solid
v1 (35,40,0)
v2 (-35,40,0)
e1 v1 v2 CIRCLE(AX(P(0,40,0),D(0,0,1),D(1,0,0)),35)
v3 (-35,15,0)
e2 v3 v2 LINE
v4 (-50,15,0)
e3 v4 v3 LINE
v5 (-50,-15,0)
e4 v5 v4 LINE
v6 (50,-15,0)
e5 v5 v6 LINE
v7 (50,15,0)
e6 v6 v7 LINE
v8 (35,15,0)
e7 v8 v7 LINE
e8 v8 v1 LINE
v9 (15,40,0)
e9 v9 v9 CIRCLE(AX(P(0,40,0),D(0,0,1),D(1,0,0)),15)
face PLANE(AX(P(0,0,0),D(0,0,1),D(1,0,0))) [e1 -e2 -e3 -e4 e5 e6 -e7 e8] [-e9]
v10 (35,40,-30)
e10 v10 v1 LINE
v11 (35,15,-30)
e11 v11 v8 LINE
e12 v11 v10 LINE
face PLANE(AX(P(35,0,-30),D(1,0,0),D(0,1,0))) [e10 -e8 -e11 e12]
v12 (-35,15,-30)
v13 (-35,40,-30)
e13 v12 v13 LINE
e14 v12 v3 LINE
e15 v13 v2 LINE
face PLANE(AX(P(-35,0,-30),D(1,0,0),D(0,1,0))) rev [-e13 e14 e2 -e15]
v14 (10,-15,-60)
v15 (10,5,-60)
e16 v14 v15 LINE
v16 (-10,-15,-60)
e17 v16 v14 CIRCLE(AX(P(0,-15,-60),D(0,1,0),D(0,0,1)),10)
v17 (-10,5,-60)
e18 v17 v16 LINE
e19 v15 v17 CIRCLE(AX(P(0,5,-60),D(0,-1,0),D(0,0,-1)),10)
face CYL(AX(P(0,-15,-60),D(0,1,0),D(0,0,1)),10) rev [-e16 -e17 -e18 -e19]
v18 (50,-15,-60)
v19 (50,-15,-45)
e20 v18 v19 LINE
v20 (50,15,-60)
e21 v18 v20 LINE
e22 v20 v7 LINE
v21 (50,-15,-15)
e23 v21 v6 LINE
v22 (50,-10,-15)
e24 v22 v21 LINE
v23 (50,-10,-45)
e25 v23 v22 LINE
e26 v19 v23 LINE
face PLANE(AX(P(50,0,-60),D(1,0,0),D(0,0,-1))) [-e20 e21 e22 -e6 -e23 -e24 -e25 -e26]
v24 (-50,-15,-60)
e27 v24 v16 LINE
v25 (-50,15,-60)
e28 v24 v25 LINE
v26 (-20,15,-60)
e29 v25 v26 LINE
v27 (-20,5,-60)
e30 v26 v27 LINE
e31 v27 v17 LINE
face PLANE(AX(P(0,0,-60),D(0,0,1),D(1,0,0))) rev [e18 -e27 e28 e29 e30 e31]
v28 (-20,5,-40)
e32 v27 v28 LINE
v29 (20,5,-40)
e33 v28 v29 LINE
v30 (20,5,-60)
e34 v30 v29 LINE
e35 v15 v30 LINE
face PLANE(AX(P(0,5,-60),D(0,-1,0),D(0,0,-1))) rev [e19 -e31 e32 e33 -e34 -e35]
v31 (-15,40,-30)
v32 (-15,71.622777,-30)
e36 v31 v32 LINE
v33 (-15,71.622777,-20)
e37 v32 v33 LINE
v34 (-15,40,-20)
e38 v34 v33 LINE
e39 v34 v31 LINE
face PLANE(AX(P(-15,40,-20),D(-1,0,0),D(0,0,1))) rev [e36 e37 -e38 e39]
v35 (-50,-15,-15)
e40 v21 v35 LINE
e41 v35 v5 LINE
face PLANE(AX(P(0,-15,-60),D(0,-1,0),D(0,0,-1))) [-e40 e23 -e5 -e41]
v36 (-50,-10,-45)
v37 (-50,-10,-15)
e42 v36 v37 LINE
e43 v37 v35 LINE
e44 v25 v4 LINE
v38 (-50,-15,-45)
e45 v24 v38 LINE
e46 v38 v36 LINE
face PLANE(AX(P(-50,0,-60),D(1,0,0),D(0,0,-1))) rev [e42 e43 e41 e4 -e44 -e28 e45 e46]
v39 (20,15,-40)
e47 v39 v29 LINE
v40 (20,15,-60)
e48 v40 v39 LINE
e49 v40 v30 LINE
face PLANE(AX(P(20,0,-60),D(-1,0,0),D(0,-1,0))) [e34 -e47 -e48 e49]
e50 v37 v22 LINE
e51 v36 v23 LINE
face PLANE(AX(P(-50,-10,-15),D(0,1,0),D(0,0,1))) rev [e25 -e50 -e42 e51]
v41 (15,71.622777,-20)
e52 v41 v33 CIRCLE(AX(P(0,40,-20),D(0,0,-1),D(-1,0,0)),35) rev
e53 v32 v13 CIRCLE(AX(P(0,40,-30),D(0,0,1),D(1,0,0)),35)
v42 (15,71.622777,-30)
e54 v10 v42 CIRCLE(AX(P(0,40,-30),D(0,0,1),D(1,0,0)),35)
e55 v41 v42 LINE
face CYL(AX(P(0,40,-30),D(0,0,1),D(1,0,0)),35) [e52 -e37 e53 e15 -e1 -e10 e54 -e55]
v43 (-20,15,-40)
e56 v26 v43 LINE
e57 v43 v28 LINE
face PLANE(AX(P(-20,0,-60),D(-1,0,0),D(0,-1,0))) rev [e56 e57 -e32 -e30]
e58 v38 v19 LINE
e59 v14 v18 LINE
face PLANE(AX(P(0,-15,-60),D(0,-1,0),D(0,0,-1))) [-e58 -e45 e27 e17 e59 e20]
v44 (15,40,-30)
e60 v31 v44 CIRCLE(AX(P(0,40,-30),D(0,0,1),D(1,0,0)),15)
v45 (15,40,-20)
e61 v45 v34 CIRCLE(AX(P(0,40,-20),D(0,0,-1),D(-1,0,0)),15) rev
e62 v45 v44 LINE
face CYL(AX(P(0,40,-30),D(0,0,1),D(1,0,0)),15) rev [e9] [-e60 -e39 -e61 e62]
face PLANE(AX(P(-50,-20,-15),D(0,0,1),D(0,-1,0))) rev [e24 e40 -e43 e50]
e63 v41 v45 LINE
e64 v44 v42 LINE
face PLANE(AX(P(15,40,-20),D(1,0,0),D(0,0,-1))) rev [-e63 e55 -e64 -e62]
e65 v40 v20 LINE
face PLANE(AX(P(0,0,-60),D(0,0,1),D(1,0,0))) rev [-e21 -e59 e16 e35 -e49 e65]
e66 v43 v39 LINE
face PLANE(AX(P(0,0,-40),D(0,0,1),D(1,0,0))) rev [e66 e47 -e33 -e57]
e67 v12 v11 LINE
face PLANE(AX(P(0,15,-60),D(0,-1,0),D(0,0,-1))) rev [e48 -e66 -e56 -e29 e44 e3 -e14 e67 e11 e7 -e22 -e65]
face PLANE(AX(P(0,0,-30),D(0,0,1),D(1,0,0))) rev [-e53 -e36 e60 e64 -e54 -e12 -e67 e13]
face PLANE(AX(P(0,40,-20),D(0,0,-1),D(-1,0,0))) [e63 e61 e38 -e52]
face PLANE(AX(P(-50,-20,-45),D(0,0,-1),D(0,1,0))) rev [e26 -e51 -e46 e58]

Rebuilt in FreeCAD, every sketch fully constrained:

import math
import FreeCAD as App
import Part
import Sketcher

V = App.Vector


def add_polygon(sketch, points):
    """Adds a closed chain of lines whose ends are joined by coincident constraints."""
    first, n = sketch.GeometryCount, len(points)
    for a, b in zip(points, points[1:] + points[:1]):
        sketch.addGeometry(Part.LineSegment(App.Vector(*a, 0), App.Vector(*b, 0)), False)
    for i in range(n):
        sketch.addConstraint(Sketcher.Constraint("Coincident", first + i, 2, first + (i + 1) % n, 1))

doc = App.newDocument("Part")
params = doc.addObject("Spreadsheet::Sheet", "Params")
for row, (alias, value) in enumerate([
    ("sketch1_width", "100 mm"),
    ("sketch1_height", "30 mm"),
    ("pad1_length", "60 mm"),
    ("sketch2_diameter", "30 mm"),
    ("sketch2_radius", "35 mm"),
    ("sketch2_height", "25 mm"),
    ("pad2_length", "30 mm"),
    ("sketch3_width", "40 mm"),
    ("sketch3_height", "10 mm"),
    ("sketch4_width", "10 mm"),
    ("sketch4_height", "30 mm"),
    ("sketch5_radius", "15 mm"),
    ("pocket3_length", "10 mm"),
    ("sketch6_diameter", "20 mm"),
], start=1):
    params.set(f"A{row}", alias)
    params.set(f"B{row}", "=" + value)
    params.setAlias(f"B{row}", alias)

body = doc.addObject("PartDesign::Body", "Body")

sketch1 = doc.addObject("Sketcher::SketchObject", "Sketch")
body.addObject(sketch1)
sketch1.AttachmentSupport = (doc.XY_Plane, [""])
sketch1.MapMode = "FlatFace"
add_polygon(sketch1, [(-50, 15), (-50, -15), (50, -15), (50, 15)])
sketch1.addConstraint(Sketcher.Constraint("Vertical", 0))
sketch1.addConstraint(Sketcher.Constraint("Horizontal", 1))
sketch1.addConstraint(Sketcher.Constraint("Vertical", 2))
sketch1.addConstraint(Sketcher.Constraint("Horizontal", 3))
sketch1.addConstraint(Sketcher.Constraint("Symmetric", 0, 2, 2, 2, -1, 1))
sketch1.addConstraint(Sketcher.Constraint("DistanceX", 1, 1, 1, 2, 100.0))
sketch1.addConstraint(Sketcher.Constraint("DistanceY", 0, 2, 0, 1, 30.0))
sketch1.setExpression("Constraints[9]", "Params.sketch1_width")
sketch1.setExpression("Constraints[10]", "Params.sketch1_height")
pad1 = doc.addObject("PartDesign::Pad", "Pad")
body.addObject(pad1)
pad1.Profile = sketch1
pad1.setExpression("Length", "Params.pad1_length")
pad1.Reversed = True

sketch2 = doc.addObject("Sketcher::SketchObject", "Sketch001")
body.addObject(sketch2)
sketch2.AttachmentSupport = (doc.XY_Plane, [""])
sketch2.MapMode = "FlatFace"
sketch2.addGeometry(Part.LineSegment(V(-35, 40, 0), V(-35, 15, 0)), False)
sketch2.addGeometry(Part.LineSegment(V(-35, 15, 0), V(35, 15, 0)), False)
sketch2.addGeometry(Part.LineSegment(V(35, 15, 0), V(35, 40, 0)), False)
sketch2.addGeometry(Part.ArcOfCircle(Part.Circle(V(0, 40, 0), V(0, 0, 1), 35), math.radians(0), math.radians(180)), False)
sketch2.addGeometry(Part.Circle(V(0, 40, 0), V(0, 0, 1), 15), False)
sketch2.addConstraint(Sketcher.Constraint("Coincident", 0, 2, 1, 1))
sketch2.addConstraint(Sketcher.Constraint("Coincident", 1, 2, 2, 1))
sketch2.addConstraint(Sketcher.Constraint("Tangent", 2, 2, 3, 1))
sketch2.addConstraint(Sketcher.Constraint("Tangent", 3, 2, 0, 1))
sketch2.addConstraint(Sketcher.Constraint("Vertical", 0))
sketch2.addConstraint(Sketcher.Constraint("Horizontal", 1))
sketch2.addConstraint(Sketcher.Constraint("Vertical", 2))
sketch2.addConstraint(Sketcher.Constraint("Coincident", 4, 3, 3, 3))
sketch2.addConstraint(Sketcher.Constraint("PointOnObject", 3, 3, -2))
sketch2.addConstraint(Sketcher.Constraint("Diameter", 4, 30.0))
sketch2.addConstraint(Sketcher.Constraint("Radius", 3, 35.0))
sketch2.addConstraint(Sketcher.Constraint("DistanceY", 0, 2, 0, 1, 25.0))
sketch2.addConstraint(Sketcher.Constraint("DistanceY", -1, 1, 3, 3, 40.0))
sketch2.setExpression("Constraints[9]", "Params.sketch2_diameter")
sketch2.setExpression("Constraints[10]", "Params.sketch2_radius")
sketch2.setExpression("Constraints[11]", "Params.sketch2_height")
pad2 = doc.addObject("PartDesign::Pad", "Pad001")
body.addObject(pad2)
pad2.Profile = sketch2
pad2.setExpression("Length", "Params.pad2_length")
pad2.Reversed = True

sketch3 = doc.addObject("Sketcher::SketchObject", "Sketch002")
body.addObject(sketch3)
sketch3.AttachmentSupport = (doc.XY_Plane, [""])
sketch3.MapMode = "FlatFace"
sketch3.AttachmentOffset = App.Placement(V(0, 0, -40), App.Rotation())
add_polygon(sketch3, [(-20, 15), (-20, 5), (20, 5), (20, 15)])
sketch3.addConstraint(Sketcher.Constraint("Vertical", 0))
sketch3.addConstraint(Sketcher.Constraint("Horizontal", 1))
sketch3.addConstraint(Sketcher.Constraint("Vertical", 2))
sketch3.addConstraint(Sketcher.Constraint("Horizontal", 3))
sketch3.addConstraint(Sketcher.Constraint("DistanceX", 1, 1, 1, 2, 40.0))
sketch3.addConstraint(Sketcher.Constraint("DistanceY", 0, 2, 0, 1, 10.0))
sketch3.addConstraint(Sketcher.Constraint("DistanceX", 0, 2, -1, 1, 20.0))
sketch3.addConstraint(Sketcher.Constraint("DistanceY", -1, 1, 0, 2, 5.0))
sketch3.setExpression("Constraints[8]", "Params.sketch3_width")
sketch3.setExpression("Constraints[9]", "Params.sketch3_height")
pocket1 = doc.addObject("PartDesign::Pocket", "Pocket")
body.addObject(pocket1)
pocket1.Profile = sketch3
pocket1.Type = "ThroughAll"

sketch4 = doc.addObject("Sketcher::SketchObject", "Sketch003")
body.addObject(sketch4)
sketch4.AttachmentSupport = (doc.YZ_Plane, [""])
sketch4.MapMode = "FlatFace"
sketch4.AttachmentOffset = App.Placement(V(0, 0, 50), App.Rotation())
add_polygon(sketch4, [(-10, -15), (-20, -15), (-20, -45), (-10, -45)])
sketch4.addConstraint(Sketcher.Constraint("Horizontal", 0))
sketch4.addConstraint(Sketcher.Constraint("Vertical", 1))
sketch4.addConstraint(Sketcher.Constraint("Horizontal", 2))
sketch4.addConstraint(Sketcher.Constraint("Vertical", 3))
sketch4.addConstraint(Sketcher.Constraint("DistanceX", 0, 2, 0, 1, 10.0))
sketch4.addConstraint(Sketcher.Constraint("DistanceY", 1, 2, 1, 1, 30.0))
sketch4.addConstraint(Sketcher.Constraint("DistanceX", 0, 2, -1, 1, 20.0))
sketch4.addConstraint(Sketcher.Constraint("DistanceY", 0, 2, -1, 1, 15.0))
sketch4.setExpression("Constraints[8]", "Params.sketch4_width")
sketch4.setExpression("Constraints[9]", "Params.sketch4_height")
pocket2 = doc.addObject("PartDesign::Pocket", "Pocket001")
body.addObject(pocket2)
pocket2.Profile = sketch4
pocket2.Type = "ThroughAll"

sketch5 = doc.addObject("Sketcher::SketchObject", "Sketch004")
body.addObject(sketch5)
sketch5.AttachmentSupport = (doc.XY_Plane, [""])
sketch5.MapMode = "FlatFace"
sketch5.AttachmentOffset = App.Placement(V(0, 0, -20), App.Rotation())
sketch5.addGeometry(Part.LineSegment(V(-15, 40, 0), V(-15, 85, 0)), False)
sketch5.addGeometry(Part.LineSegment(V(-15, 85, 0), V(15, 85, 0)), False)
sketch5.addGeometry(Part.LineSegment(V(15, 85, 0), V(15, 40, 0)), False)
sketch5.addGeometry(Part.ArcOfCircle(Part.Circle(V(0, 40, 0), V(0, 0, 1), 15), math.radians(180), math.radians(360)), False)
sketch5.addConstraint(Sketcher.Constraint("Coincident", 0, 2, 1, 1))
sketch5.addConstraint(Sketcher.Constraint("Coincident", 1, 2, 2, 1))
sketch5.addConstraint(Sketcher.Constraint("Tangent", 2, 2, 3, 2))
sketch5.addConstraint(Sketcher.Constraint("Tangent", 3, 1, 0, 1))
sketch5.addConstraint(Sketcher.Constraint("Vertical", 0))
sketch5.addConstraint(Sketcher.Constraint("Horizontal", 1))
sketch5.addConstraint(Sketcher.Constraint("Vertical", 2))
sketch5.addConstraint(Sketcher.Constraint("PointOnObject", 3, 3, -2))
sketch5.addConstraint(Sketcher.Constraint("Radius", 3, 15.0))
sketch5.addConstraint(Sketcher.Constraint("DistanceY", -1, 1, 3, 3, 40.0))
sketch5.addConstraint(Sketcher.Constraint("DistanceY", 0, 1, 0, 2, 45.033893))
sketch5.setExpression("Constraints[8]", "Params.sketch5_radius")
pocket3 = doc.addObject("PartDesign::Pocket", "Pocket002")
body.addObject(pocket3)
pocket3.Profile = sketch5
pocket3.setExpression("Length", "Params.pocket3_length")

sketch6 = doc.addObject("Sketcher::SketchObject", "Sketch005")
body.addObject(sketch6)
sketch6.AttachmentSupport = (doc.XZ_Plane, [""])
sketch6.MapMode = "FlatFace"
sketch6.AttachmentOffset = App.Placement(V(0, 0, -5), App.Rotation())
sketch6.addGeometry(Part.Circle(V(0, -60, 0), V(0, 0, 1), 10), False)
sketch6.addConstraint(Sketcher.Constraint("PointOnObject", 0, 3, -2))
sketch6.addConstraint(Sketcher.Constraint("Diameter", 0, 20.0))
sketch6.addConstraint(Sketcher.Constraint("DistanceY", 0, 3, -1, 1, 60.0))
sketch6.setExpression("Constraints[1]", "Params.sketch6_diameter")
pocket4 = doc.addObject("PartDesign::Pocket", "Pocket003")
body.addObject(pocket4)
pocket4.Profile = sketch6
pocket4.Type = "ThroughAll"
pocket4.Reversed = True

doc.recompute()
